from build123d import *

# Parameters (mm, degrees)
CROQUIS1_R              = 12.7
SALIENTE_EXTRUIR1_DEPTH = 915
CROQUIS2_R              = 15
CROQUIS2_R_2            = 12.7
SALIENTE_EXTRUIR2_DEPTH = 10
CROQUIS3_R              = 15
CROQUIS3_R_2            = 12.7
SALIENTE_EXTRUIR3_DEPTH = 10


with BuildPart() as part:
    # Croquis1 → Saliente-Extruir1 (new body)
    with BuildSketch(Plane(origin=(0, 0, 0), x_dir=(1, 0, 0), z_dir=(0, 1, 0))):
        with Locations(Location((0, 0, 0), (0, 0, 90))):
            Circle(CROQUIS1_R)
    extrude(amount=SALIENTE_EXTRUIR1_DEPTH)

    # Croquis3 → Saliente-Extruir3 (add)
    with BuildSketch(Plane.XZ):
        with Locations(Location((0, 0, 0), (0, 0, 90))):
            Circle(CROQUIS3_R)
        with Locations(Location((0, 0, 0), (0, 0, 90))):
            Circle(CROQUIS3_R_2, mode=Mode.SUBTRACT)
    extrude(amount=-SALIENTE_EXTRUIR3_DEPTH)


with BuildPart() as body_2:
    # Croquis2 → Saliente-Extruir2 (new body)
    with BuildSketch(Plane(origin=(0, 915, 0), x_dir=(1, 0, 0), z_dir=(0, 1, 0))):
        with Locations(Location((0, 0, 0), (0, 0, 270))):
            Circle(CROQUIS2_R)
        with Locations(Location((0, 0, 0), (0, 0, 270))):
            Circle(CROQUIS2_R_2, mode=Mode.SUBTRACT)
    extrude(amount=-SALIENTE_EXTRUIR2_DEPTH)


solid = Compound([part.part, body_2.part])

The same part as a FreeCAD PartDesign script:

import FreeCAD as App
import Part
import Sketcher
Q = App.Units.Quantity

doc = App.newDocument("Part")
body = doc.addObject("PartDesign::Body", "Body")

sketch1 = doc.addObject("Sketcher::SketchObject", "Sketch")
body.addObject(sketch1)
sketch1.AttachmentSupport = (doc.XZ_Plane, [""])
sketch1.MapMode = "FlatFace"
sketch1.addGeometry(Part.Circle(App.Vector(0, 0, 0), App.Vector(0, 0, 1), 13), False)
sketch1.addConstraint(Sketcher.Constraint("Coincident", 0, 3, -1, 1))
sketch1.addConstraint(Sketcher.Constraint("Diameter", 0, Q("25.4 mm")))
pad1 = doc.addObject("PartDesign::Pad", "Pad")
body.addObject(pad1)
pad1.Profile = sketch1
pad1.Length = 915
pad1.Reversed = True

sketch2 = doc.addObject("Sketcher::SketchObject", "Sketch001")
body.addObject(sketch2)
sketch2.AttachmentSupport = (doc.XZ_Plane, [""])
sketch2.MapMode = "FlatFace"
sketch2.addGeometry(Part.Circle(App.Vector(0, 0, 0), App.Vector(0, 0, 1), 15), False)
sketch2.addGeometry(Part.Circle(App.Vector(0, 0, 0), App.Vector(0, 0, 1), 13), False)
sketch2.addConstraint(Sketcher.Constraint("Coincident", 0, 3, -1, 1))
sketch2.addConstraint(Sketcher.Constraint("Coincident", 1, 3, -1, 1))
sketch2.addConstraint(Sketcher.Constraint("Diameter", 0, Q("30 mm")))
sketch2.addConstraint(Sketcher.Constraint("Diameter", 1, Q("25.4 mm")))
pad2 = doc.addObject("PartDesign::Pad", "Pad001")
body.addObject(pad2)
pad2.Profile = sketch2
pad2.Length = 10
pad2.Reversed = True
body2 = doc.addObject("PartDesign::Body", "Body001")

sketch3 = doc.addObject("Sketcher::SketchObject", "Sketch002")
body2.addObject(sketch3)
sketch3.AttachmentSupport = (doc.getObject("XZ_Plane001"), [""])
sketch3.MapMode = "FlatFace"
sketch3.AttachmentOffset = App.Placement(App.Vector(0, 0, -915), App.Rotation())
sketch3.addGeometry(Part.Circle(App.Vector(0, 0, 0), App.Vector(0, 0, 1), 15), False)
sketch3.addGeometry(Part.Circle(App.Vector(0, 0, 0), App.Vector(0, 0, 1), 13), False)
sketch3.addConstraint(Sketcher.Constraint("Coincident", 0, 3, -1, 1))
sketch3.addConstraint(Sketcher.Constraint("Coincident", 1, 3, -1, 1))
sketch3.addConstraint(Sketcher.Constraint("Diameter", 0, Q("30 mm")))
sketch3.addConstraint(Sketcher.Constraint("Diameter", 1, Q("25.4 mm")))
pad3 = doc.addObject("PartDesign::Pad", "Pad002")
body2.addObject(pad3)
pad3.Profile = sketch3
pad3.Length = 10

doc.recompute()
